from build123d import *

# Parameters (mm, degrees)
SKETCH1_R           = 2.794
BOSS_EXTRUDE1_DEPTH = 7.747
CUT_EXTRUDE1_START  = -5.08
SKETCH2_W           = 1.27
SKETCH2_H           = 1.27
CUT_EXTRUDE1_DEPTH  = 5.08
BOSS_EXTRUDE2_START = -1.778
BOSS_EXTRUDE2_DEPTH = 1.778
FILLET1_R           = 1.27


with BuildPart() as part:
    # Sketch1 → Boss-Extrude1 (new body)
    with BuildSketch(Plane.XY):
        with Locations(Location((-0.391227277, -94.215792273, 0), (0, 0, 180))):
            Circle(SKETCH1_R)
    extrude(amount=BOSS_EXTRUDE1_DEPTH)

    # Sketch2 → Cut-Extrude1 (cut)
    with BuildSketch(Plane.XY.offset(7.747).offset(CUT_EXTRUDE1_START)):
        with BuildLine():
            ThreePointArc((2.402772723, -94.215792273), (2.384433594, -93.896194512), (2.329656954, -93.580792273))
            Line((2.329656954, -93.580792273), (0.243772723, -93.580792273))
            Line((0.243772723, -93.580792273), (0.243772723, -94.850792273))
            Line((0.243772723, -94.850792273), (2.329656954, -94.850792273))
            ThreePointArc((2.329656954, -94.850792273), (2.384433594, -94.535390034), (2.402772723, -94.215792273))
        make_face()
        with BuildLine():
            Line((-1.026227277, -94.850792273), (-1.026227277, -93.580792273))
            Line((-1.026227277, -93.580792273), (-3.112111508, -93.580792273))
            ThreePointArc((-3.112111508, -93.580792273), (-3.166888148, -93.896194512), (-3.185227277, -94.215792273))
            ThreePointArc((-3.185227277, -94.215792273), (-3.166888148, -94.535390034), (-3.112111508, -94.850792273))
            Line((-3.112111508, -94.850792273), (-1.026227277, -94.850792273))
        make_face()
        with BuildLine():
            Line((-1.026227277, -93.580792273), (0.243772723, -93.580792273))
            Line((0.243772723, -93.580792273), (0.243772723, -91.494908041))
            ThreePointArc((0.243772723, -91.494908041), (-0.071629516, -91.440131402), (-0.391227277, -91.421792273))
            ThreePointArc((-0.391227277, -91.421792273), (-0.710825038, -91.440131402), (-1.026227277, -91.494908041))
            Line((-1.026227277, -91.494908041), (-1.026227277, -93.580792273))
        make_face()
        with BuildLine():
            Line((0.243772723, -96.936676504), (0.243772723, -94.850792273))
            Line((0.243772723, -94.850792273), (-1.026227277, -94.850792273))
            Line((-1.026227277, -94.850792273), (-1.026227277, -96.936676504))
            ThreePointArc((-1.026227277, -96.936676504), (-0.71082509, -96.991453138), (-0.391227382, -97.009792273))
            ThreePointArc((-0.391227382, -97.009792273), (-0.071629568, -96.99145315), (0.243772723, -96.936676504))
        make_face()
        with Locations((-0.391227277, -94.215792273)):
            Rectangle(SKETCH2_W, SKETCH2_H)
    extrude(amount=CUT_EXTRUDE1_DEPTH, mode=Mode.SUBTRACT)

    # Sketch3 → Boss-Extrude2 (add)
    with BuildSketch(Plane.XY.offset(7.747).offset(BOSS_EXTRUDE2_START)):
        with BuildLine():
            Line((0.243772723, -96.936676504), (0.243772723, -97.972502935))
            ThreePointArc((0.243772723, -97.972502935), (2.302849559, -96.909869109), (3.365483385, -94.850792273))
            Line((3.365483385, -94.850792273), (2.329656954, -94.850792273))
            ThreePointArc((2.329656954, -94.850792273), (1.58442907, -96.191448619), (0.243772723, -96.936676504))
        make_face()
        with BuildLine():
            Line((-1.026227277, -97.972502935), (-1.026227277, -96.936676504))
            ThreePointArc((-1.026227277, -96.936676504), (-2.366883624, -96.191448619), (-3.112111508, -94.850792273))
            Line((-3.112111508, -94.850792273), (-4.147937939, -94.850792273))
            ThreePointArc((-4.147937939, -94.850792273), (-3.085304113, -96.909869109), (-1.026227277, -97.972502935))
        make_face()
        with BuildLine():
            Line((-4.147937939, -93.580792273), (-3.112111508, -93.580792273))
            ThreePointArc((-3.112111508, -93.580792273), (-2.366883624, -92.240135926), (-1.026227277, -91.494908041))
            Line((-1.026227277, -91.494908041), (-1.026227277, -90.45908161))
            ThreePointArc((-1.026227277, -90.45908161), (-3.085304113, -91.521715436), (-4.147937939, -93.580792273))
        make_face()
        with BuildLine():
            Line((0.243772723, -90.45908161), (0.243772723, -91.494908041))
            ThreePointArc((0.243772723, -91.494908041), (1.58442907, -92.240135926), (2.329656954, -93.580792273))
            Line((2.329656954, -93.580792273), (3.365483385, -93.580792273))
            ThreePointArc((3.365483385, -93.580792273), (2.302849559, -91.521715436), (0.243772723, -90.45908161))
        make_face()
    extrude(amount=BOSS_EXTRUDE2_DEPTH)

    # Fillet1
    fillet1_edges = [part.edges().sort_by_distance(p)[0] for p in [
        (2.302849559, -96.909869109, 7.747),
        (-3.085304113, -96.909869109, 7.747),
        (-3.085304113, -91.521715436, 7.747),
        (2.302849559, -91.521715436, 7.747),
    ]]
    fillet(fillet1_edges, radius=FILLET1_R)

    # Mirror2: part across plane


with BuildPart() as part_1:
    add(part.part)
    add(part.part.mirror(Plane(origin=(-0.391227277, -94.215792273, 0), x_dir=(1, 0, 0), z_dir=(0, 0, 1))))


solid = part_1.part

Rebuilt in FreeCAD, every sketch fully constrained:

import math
import FreeCAD as App
import Part
import Sketcher
Q = App.Units.Quantity


def edges_at(feature, points):
    """Names of the edges that pass closest to the given points."""
    edges = feature.Shape.Edges
    near = lambda p: min(range(len(edges)), key=lambda i: edges[i].distToShape(Part.Vertex(*p))[0])
    return sorted({f"Edge{near(p) + 1}" for p in points})

doc = App.newDocument("Part")
body = doc.addObject("PartDesign::Body", "Body")

sketch1 = doc.addObject("Sketcher::SketchObject", "Sketch")
body.addObject(sketch1)
sketch1.AttachmentSupport = (doc.XY_Plane, [""])
sketch1.MapMode = "FlatFace"
sketch1.addGeometry(Part.Circle(App.Vector(-0.4, -94.2, 0), App.Vector(0, 0, 1), 2.8), False)
sketch1.addConstraint([
    Sketcher.Constraint("Diameter", 0, Q("0.22 in")),
    Sketcher.Constraint("DistanceX", 0, 3, -1, 1, 0.391227),
    Sketcher.Constraint("DistanceY", 0, 3, -1, 1, 94.215792),
])
pad1 = doc.addObject("PartDesign::Pad", "Pad")
body.addObject(pad1)
pad1.Profile = sketch1
pad1.Length = Q("0.305 in")

sketch2 = doc.addObject("Sketcher::SketchObject", "Sketch001")
body.addObject(sketch2)
sketch2.AttachmentSupport = (doc.XY_Plane, [""])
sketch2.MapMode = "FlatFace"
sketch2.AttachmentOffset = App.Placement(App.Vector(0, 0, 0.105 * 25.4), App.Rotation())
sketch2.addGeometry([
    Part.ArcOfCircle(Part.Circle(App.Vector(-0.4, -94.2, 0), App.Vector(0, 0, 1), 2.8), math.radians(0), math.radians(13.14)),
    Part.LineSegment(App.Vector(2.3, -93.6, 0), App.Vector(0.2, -93.6, 0)),
    Part.LineSegment(App.Vector(0.2, -93.6, 0), App.Vector(0.2, -91.5, 0)),
    Part.ArcOfCircle(Part.Circle(App.Vector(-0.4, -94.2, 0), App.Vector(0, 0, 1), 2.8), math.radians(76.86), math.radians(90)),
    Part.ArcOfCircle(Part.Circle(App.Vector(-0.4, -94.2, 0), App.Vector(0, 0, 1), 2.8), math.radians(90), math.radians(103.14)),
    Part.LineSegment(App.Vector(-1, -91.5, 0), App.Vector(-1, -93.6, 0)),
    Part.LineSegment(App.Vector(-1, -93.6, 0), App.Vector(-3.1, -93.6, 0)),
    Part.ArcOfCircle(Part.Circle(App.Vector(-0.4, -94.2, 0), App.Vector(0, 0, 1), 2.8), math.radians(166.86), math.radians(180)),
    Part.ArcOfCircle(Part.Circle(App.Vector(-0.4, -94.2, 0), App.Vector(0, 0, 1), 2.8), math.radians(180), math.radians(193.14)),
    Part.LineSegment(App.Vector(-3.1, -94.9, 0), App.Vector(-1, -94.9, 0)),
    Part.LineSegment(App.Vector(-1, -94.9, 0), App.Vector(-1, -96.9, 0)),
    Part.ArcOfCircle(Part.Circle(App.Vector(-0.4, -94.2, 0), App.Vector(0, 0, 1), 2.8), math.radians(-103.14), math.radians(-90)),
    Part.ArcOfCircle(Part.Circle(App.Vector(-0.4, -94.2, 0), App.Vector(0, 0, 1), 2.8), math.radians(-90), math.radians(-76.86)),
    Part.LineSegment(App.Vector(0.2, -96.9, 0), App.Vector(0.2, -94.9, 0)),
    Part.LineSegment(App.Vector(0.2, -94.9, 0), App.Vector(2.3, -94.9, 0)),
    Part.ArcOfCircle(Part.Circle(App.Vector(-0.4, -94.2, 0), App.Vector(0, 0, 1), 2.8), math.radians(-13.14), math.radians(0)),
], False)
sketch2.addConstraint([
    Sketcher.Constraint("Coincident", 0, 2, 1, 1),
    Sketcher.Constraint("Coincident", 1, 2, 2, 1),
    Sketcher.Constraint("Coincident", 2, 2, 3, 1),
    Sketcher.Constraint("Tangent", 3, 2, 4, 1),
    Sketcher.Constraint("Coincident", 4, 2, 5, 1),
    Sketcher.Constraint("Coincident", 5, 2, 6, 1),
    Sketcher.Constraint("Coincident", 6, 2, 7, 1),
    Sketcher.Constraint("Tangent", 7, 2, 8, 1),
    Sketcher.Constraint("Coincident", 8, 2, 9, 1),
    Sketcher.Constraint("Coincident", 9, 2, 10, 1),
    Sketcher.Constraint("Coincident", 10, 2, 11, 1),
    Sketcher.Constraint("Tangent", 11, 2, 12, 1),
    Sketcher.Constraint("Coincident", 12, 2, 13, 1),
    Sketcher.Constraint("Coincident", 13, 2, 14, 1),
    Sketcher.Constraint("Coincident", 14, 2, 15, 1),
    Sketcher.Constraint("Tangent", 15, 2, 0, 1),
    Sketcher.Constraint("Horizontal", 1),
    Sketcher.Constraint("Vertical", 2),
    Sketcher.Constraint("Vertical", 5),
    Sketcher.Constraint("Horizontal", 6),
    Sketcher.Constraint("Horizontal", 9),
    Sketcher.Constraint("Vertical", 10),
    Sketcher.Constraint("Vertical", 13),
    Sketcher.Constraint("Horizontal", 14),
    Sketcher.Constraint("Coincident", 3, 3, 0, 3),
    Sketcher.Constraint("Coincident", 7, 3, 0, 3),
    Sketcher.Constraint("Coincident", 11, 3, 0, 3),
    Sketcher.Constraint("Equal", 0, 3),
    Sketcher.Constraint("Equal", 3, 4),
    Sketcher.Constraint("Equal", 4, 7),
    Sketcher.Constraint("Equal", 7, 8),
    Sketcher.Constraint("Equal", 8, 11),
    Sketcher.Constraint("Equal", 11, 12),
    Sketcher.Constraint("Equal", 12, 15),
    Sketcher.Constraint("Horizontal", 2, 2, 4, 2),
    Sketcher.Constraint("Horizontal", 1, 2, 5, 2),
    Sketcher.Constraint("Horizontal", 15, 3, 7, 2),
    Sketcher.Constraint("Horizontal", 10, 2, 12, 2),
    Sketcher.Constraint("Horizontal", 9, 2, 13, 2),
    Sketcher.Constraint("Horizontal", 7, 2, 15, 2),
    Sketcher.Constraint("Vertical", 15, 3, 3, 2),
    Sketcher.Constraint("Vertical", 6, 2, 8, 2),
    Sketcher.Constraint("Vertical", 5, 2, 9, 2),
    Sketcher.Constraint("Vertical", 3, 2, 11, 2),
    Sketcher.Constraint("Equal", 14, 2),
    Sketcher.Constraint("Radius", 0, Q("0.11 in")),
    Sketcher.Constraint("DistanceX", 4, 2, 2, 2, Q("0.05 in")),
    Sketcher.Constraint("DistanceY", 2, 2, -1, 1, 91.494908),
    Sketcher.Constraint("DistanceX", 6, 2, -1, 1, 3.112112),
])
pocket1 = doc.addObject("PartDesign::Pocket", "Pocket")
body.addObject(pocket1)
pocket1.Profile = sketch2
pocket1.Length = Q("0.2 in")
pocket1.Reversed = True

sketch3 = doc.addObject("Sketcher::SketchObject", "Sketch002")
body.addObject(sketch3)
sketch3.AttachmentSupport = (doc.XY_Plane, [""])
sketch3.MapMode = "FlatFace"
sketch3.AttachmentOffset = App.Placement(App.Vector(0, 0, 0.235 * 25.4), App.Rotation())
sketch3.addGeometry([
    Part.LineSegment(App.Vector(0.2, -96.9, 0), App.Vector(0.2, -98, 0)),
    Part.ArcOfCircle(Part.Circle(App.Vector(-0.4, -94.2, 0), App.Vector(0, 0, 1), 3.8), math.radians(-80), math.radians(-10)),
    Part.LineSegment(App.Vector(3.4, -94.9, 0), App.Vector(2.3, -94.9, 0)),
    Part.ArcOfCircle(Part.Circle(App.Vector(-0.4, -94.2, 0), App.Vector(0, 0, 1), 2.8), math.radians(-77), math.radians(-13)),
    Part.LineSegment(App.Vector(-1, -98, 0), App.Vector(-1, -96.9, 0)),
    Part.ArcOfCircle(Part.Circle(App.Vector(-0.4, -94.2, 0), App.Vector(0, 0, 1), 2.8), math.radians(-167), math.radians(-103)),
    Part.LineSegment(App.Vector(-3.1, -94.9, 0), App.Vector(-4.1, -94.9, 0)),
    Part.ArcOfCircle(Part.Circle(App.Vector(-0.4, -94.2, 0), App.Vector(0, 0, 1), 3.8), math.radians(-170), math.radians(-100)),
    Part.LineSegment(App.Vector(-4.1, -93.6, 0), App.Vector(-3.1, -93.6, 0)),
    Part.ArcOfCircle(Part.Circle(App.Vector(-0.4, -94.2, 0), App.Vector(0, 0, 1), 2.8), math.radians(103), math.radians(167)),
    Part.LineSegment(App.Vector(-1, -91.5, 0), App.Vector(-1, -90.5, 0)),
    Part.ArcOfCircle(Part.Circle(App.Vector(-0.4, -94.2, 0), App.Vector(0, 0, 1), 3.8), math.radians(100), math.radians(170)),
    Part.LineSegment(App.Vector(0.2, -90.5, 0), App.Vector(0.2, -91.5, 0)),
    Part.ArcOfCircle(Part.Circle(App.Vector(-0.4, -94.2, 0), App.Vector(0, 0, 1), 2.8), math.radians(13), math.radians(77)),
    Part.LineSegment(App.Vector(2.3, -93.6, 0), App.Vector(3.4, -93.6, 0)),
    Part.ArcOfCircle(Part.Circle(App.Vector(-0.4, -94.2, 0), App.Vector(0, 0, 1), 3.8), math.radians(10), math.radians(80)),
], False)
sketch3.addConstraint([
    Sketcher.Constraint("Coincident", 0, 2, 1, 1),
    Sketcher.Constraint("Coincident", 1, 2, 2, 1),
    Sketcher.Constraint("Coincident", 2, 2, 3, 2),
    Sketcher.Constraint("Coincident", 3, 1, 0, 1),
    Sketcher.Constraint("Coincident", 4, 2, 5, 2),
    Sketcher.Constraint("Coincident", 5, 1, 6, 1),
    Sketcher.Constraint("Coincident", 6, 2, 7, 1),
    Sketcher.Constraint("Coincident", 7, 2, 4, 1),
    Sketcher.Constraint("Coincident", 8, 2, 9, 2),
    Sketcher.Constraint("Coincident", 9, 1, 10, 1),
    Sketcher.Constraint("Coincident", 10, 2, 11, 1),
    Sketcher.Constraint("Coincident", 11, 2, 8, 1),
    Sketcher.Constraint("Coincident", 12, 2, 13, 2),
    Sketcher.Constraint("Coincident", 13, 1, 14, 1),
    Sketcher.Constraint("Coincident", 14, 2, 15, 1),
    Sketcher.Constraint("Coincident", 15, 2, 12, 1),
    Sketcher.Constraint("Vertical", 0),
    Sketcher.Constraint("Horizontal", 2),
    Sketcher.Constraint("Vertical", 4),
    Sketcher.Constraint("Horizontal", 6),
    Sketcher.Constraint("Horizontal", 8),
    Sketcher.Constraint("Vertical", 10),
    Sketcher.Constraint("Vertical", 12),
    Sketcher.Constraint("Horizontal", 14),
    Sketcher.Constraint("Coincident", 3, 3, 1, 3),
    Sketcher.Constraint("Coincident", 5, 3, 1, 3),
    Sketcher.Constraint("Coincident", 7, 3, 1, 3),
    Sketcher.Constraint("Coincident", 9, 3, 1, 3),
    Sketcher.Constraint("Coincident", 11, 3, 1, 3),
    Sketcher.Constraint("Coincident", 13, 3, 1, 3),
    Sketcher.Constraint("Coincident", 15, 3, 1, 3),
    Sketcher.Constraint("Equal", 3, 5),
    Sketcher.Constraint("Equal", 1, 7),
    Sketcher.Constraint("Equal", 5, 9),
    Sketcher.Constraint("Equal", 7, 11),
    Sketcher.Constraint("Equal", 9, 13),
    Sketcher.Constraint("Equal", 11, 15),
    Sketcher.Constraint("Horizontal", 3, 1, 4, 2),
    Sketcher.Constraint("Horizontal", 2, 2, 5, 1),
    Sketcher.Constraint("Horizontal", 9, 1, 12, 2),
    Sketcher.Constraint("Horizontal", 11, 2, 13, 1),
    Sketcher.Constraint("Vertical", 5, 1, 8, 2),
    Sketcher.Constraint("Vertical", 7, 2, 9, 1),
    Sketcher.Constraint("Equal", 14, 0),
    Sketcher.Constraint("Radius", 1, Q("0.15 in")),
    Sketcher.Constraint("Radius", 3, Q("0.11 in")),
    Sketcher.Constraint("DistanceX", 4, 2, 3, 1, Q("0.05 in")),
    Sketcher.Constraint("DistanceX", 5, 1, -1, 1, 3.112112),
    Sketcher.Constraint("DistanceY", 9, 1, -1, 1, 91.494908),
])
pad2 = doc.addObject("PartDesign::Pad", "Pad001")
body.addObject(pad2)
pad2.Profile = sketch3
pad2.Length = Q("0.07 in")
doc.recompute()

fillet = doc.addObject("PartDesign::Fillet", "Fillet")
body.addObject(fillet)
fillet.Base = (pad2, edges_at(pad2, [
    (2.303, -96.91, 7.747),
    (-3.085, -96.91, 7.747),
    (-3.085, -91.522, 7.747),
    (2.303, -91.522, 7.747),
]))
fillet.Radius = Q("0.05 in")
body2 = doc.addObject("PartDesign::Body", "Body001")
doc.recompute()

body2.BaseFeature = body
doc.recompute()

mirroring = doc.addObject("Part::Mirroring", "Mirroring")
mirroring.Source = body
mirroring.Base = App.Vector(-0.391227, -94.215792, 0)
mirroring.Normal = App.Vector(0, 0, 1)
body3 = doc.addObject("PartDesign::Body", "Body002")
body3.BaseFeature = mirroring
boolean = doc.addObject("PartDesign::Boolean", "Boolean")
body2.addObject(boolean)
boolean.Type = "Fuse"
boolean.addObjects([body3])
doc.recompute()
mirroring.Visibility = False

doc.recompute()
